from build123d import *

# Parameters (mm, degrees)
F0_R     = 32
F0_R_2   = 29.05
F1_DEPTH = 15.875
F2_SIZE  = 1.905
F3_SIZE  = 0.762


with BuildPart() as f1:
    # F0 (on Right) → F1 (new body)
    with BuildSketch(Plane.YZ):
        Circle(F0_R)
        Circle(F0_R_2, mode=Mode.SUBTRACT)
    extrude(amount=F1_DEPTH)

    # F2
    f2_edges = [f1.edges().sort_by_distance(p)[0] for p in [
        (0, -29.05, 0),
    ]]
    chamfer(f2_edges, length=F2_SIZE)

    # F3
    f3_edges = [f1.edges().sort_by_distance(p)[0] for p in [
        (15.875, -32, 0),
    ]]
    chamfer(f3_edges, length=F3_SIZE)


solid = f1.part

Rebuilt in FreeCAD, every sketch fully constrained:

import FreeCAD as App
import Part
import Sketcher

V = App.Vector
Q = App.Units.Quantity


def edges_at(feature, points):
    """Names of the edges that pass closest to the given points."""
    edges = feature.Shape.Edges
    near = lambda p: min(range(len(edges)), key=lambda i: edges[i].distToShape(Part.Vertex(*p))[0])
    return sorted({f"Edge{near(p) + 1}" for p in points})

doc = App.newDocument("Part")
body = doc.addObject("PartDesign::Body", "Body")

# Sketch on YZ plane
sketch1 = doc.addObject("Sketcher::SketchObject", "Sketch")
body.addObject(sketch1)
sketch1.AttachmentSupport = (doc.YZ_Plane, [""])
sketch1.MapMode = "FlatFace"
sketch1.addGeometry([
    Part.Circle(V(0, 0, 0), V(0, 0, 1), 32),
    Part.Circle(V(0, 0, 0), V(0, 0, 1), 29),
], False)
sketch1.addConstraint([
    Sketcher.Constraint("Coincident", 0, 3, -1, 1),
    Sketcher.Constraint("Coincident", 1, 3, -1, 1),
    Sketcher.Constraint("Diameter", 0, 64.0),
    Sketcher.Constraint("Diameter", 1, 58.1),
])
pad1 = doc.addObject("PartDesign::Pad", "Pad")
body.addObject(pad1)
pad1.Profile = sketch1
pad1.Length = Q("0.625 in")
doc.recompute()

chamfer = doc.addObject("PartDesign::Chamfer", "Chamfer")
body.addObject(chamfer)
chamfer.Base = (pad1, edges_at(pad1, [(0, -29.05, 0)]))
chamfer.Size = Q("0.075 in")
doc.recompute()

chamfer2 = doc.addObject("PartDesign::Chamfer", "Chamfer001")
body.addObject(chamfer2)
chamfer2.Base = (chamfer, edges_at(chamfer, [(15.875, -32, 0)]))
chamfer2.Size = Q("0.03 in")

doc.recompute()
